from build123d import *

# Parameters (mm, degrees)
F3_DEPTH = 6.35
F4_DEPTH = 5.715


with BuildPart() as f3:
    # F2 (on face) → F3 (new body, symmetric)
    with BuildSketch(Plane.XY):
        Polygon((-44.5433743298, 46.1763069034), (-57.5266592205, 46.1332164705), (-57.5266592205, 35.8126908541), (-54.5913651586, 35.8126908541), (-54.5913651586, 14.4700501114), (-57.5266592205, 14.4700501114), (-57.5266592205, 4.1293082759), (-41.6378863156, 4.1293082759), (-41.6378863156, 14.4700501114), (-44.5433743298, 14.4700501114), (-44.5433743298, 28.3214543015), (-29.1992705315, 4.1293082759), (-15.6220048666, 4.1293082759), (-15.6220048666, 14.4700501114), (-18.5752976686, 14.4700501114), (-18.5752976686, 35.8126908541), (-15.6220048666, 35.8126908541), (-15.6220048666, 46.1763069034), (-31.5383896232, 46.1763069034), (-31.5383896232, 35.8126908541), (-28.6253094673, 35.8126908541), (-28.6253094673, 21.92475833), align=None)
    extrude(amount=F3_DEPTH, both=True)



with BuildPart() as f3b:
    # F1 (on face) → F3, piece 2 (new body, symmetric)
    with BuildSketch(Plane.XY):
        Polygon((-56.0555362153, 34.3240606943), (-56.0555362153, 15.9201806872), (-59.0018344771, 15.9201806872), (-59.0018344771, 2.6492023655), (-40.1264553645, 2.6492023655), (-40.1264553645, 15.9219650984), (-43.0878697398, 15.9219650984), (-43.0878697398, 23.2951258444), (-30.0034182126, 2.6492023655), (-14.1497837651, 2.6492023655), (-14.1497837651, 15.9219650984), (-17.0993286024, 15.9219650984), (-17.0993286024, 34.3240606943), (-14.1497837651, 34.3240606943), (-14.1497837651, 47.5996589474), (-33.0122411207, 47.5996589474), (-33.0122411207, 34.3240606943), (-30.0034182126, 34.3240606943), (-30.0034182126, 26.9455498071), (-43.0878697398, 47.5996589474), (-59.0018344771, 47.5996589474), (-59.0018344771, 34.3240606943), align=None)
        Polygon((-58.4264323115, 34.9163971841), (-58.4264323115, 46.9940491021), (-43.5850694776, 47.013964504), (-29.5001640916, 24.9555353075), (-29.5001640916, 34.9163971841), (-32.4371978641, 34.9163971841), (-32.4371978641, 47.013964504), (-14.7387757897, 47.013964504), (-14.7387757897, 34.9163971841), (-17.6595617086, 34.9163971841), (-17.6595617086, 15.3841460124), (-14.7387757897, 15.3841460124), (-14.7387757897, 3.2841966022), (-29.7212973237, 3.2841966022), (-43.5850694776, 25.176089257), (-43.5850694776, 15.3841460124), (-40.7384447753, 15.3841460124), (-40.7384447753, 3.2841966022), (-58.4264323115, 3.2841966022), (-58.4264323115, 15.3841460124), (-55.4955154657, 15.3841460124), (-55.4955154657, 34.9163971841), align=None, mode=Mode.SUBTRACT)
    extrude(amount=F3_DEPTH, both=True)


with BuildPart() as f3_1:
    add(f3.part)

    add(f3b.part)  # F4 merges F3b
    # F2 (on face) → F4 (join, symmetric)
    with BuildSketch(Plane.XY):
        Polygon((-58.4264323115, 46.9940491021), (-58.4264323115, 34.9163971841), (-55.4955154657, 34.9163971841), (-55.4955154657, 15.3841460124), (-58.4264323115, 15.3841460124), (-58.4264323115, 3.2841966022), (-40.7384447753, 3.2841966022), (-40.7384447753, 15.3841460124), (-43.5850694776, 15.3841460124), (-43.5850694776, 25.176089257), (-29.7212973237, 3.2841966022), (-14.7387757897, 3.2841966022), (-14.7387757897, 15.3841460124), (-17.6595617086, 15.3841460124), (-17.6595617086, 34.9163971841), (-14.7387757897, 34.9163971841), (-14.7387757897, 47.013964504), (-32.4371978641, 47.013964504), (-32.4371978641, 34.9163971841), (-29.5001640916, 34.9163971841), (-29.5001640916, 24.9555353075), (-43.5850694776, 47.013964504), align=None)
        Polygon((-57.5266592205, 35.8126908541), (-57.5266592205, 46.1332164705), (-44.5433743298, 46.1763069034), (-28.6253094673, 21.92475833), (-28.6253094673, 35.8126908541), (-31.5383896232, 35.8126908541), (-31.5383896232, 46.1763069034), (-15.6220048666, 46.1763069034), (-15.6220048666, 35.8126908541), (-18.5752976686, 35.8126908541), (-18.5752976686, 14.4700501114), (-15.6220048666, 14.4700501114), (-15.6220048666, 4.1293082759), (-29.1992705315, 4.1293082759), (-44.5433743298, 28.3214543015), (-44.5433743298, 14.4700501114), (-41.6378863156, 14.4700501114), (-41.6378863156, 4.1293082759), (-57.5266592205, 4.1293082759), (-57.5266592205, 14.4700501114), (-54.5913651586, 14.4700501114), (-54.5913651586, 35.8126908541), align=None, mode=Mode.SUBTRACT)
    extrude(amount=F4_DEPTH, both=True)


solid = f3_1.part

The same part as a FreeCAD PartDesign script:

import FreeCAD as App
import Part
import Sketcher

V = App.Vector
Q = App.Units.Quantity

doc = App.newDocument("Part")
body = doc.addObject("PartDesign::Body", "Body")

# Sketch on XY plane
sketch1 = body.newObject("Sketcher::SketchObject", "Sketch")
sketch1.AttachmentSupport = (doc.getObject("XY_Plane"), [""])
sketch1.MapMode = "FlatFace"
sketch1.addGeometry([
    Part.LineSegment(V(-44.5, 46.2, 0), V(-57.5, 46.1, 0)),  # 0
    Part.LineSegment(V(-57.5, 46.1, 0), V(-57.5, 35.8, 0)),  # 1
    Part.LineSegment(V(-57.5, 35.8, 0), V(-54.6, 35.8, 0)),  # 2
    Part.LineSegment(V(-54.6, 35.8, 0), V(-54.6, 14.5, 0)),  # 3
    Part.LineSegment(V(-54.6, 14.5, 0), V(-57.5, 14.5, 0)),  # 4
    Part.LineSegment(V(-57.5, 14.5, 0), V(-57.5, 4.1, 0)),  # 5
    Part.LineSegment(V(-57.5, 4.1, 0), V(-41.6, 4.1, 0)),  # 6
    Part.LineSegment(V(-41.6, 4.1, 0), V(-41.6, 14.5, 0)),  # 7
    Part.LineSegment(V(-41.6, 14.5, 0), V(-44.5, 14.5, 0)),  # 8
    Part.LineSegment(V(-44.5, 14.5, 0), V(-44.5, 28.3, 0)),  # 9
    Part.LineSegment(V(-44.5, 28.3, 0), V(-29.2, 4.1, 0)),  # 10
    Part.LineSegment(V(-29.2, 4.1, 0), V(-15.6, 4.1, 0)),  # 11
    Part.LineSegment(V(-15.6, 4.1, 0), V(-15.6, 14.5, 0)),  # 12
    Part.LineSegment(V(-15.6, 14.5, 0), V(-18.6, 14.5, 0)),  # 13
    Part.LineSegment(V(-18.6, 14.5, 0), V(-18.6, 35.8, 0)),  # 14
    Part.LineSegment(V(-18.6, 35.8, 0), V(-15.6, 35.8, 0)),  # 15
    Part.LineSegment(V(-15.6, 35.8, 0), V(-15.6, 46.2, 0)),  # 16
    Part.LineSegment(V(-15.6, 46.2, 0), V(-31.5, 46.2, 0)),  # 17
    Part.LineSegment(V(-31.5, 46.2, 0), V(-31.5, 35.8, 0)),  # 18
    Part.LineSegment(V(-31.5, 35.8, 0), V(-28.6, 35.8, 0)),  # 19
    Part.LineSegment(V(-28.6, 35.8, 0), V(-28.6, 21.9, 0)),  # 20
    Part.LineSegment(V(-28.6, 21.9, 0), V(-44.5, 46.2, 0)),  # 21
], False)
sketch1.addConstraint([
    Sketcher.Constraint("Coincident", 0, 2, 1, 1),
    Sketcher.Constraint("Coincident", 1, 2, 2, 1),
    Sketcher.Constraint("Coincident", 2, 2, 3, 1),
    Sketcher.Constraint("Coincident", 3, 2, 4, 1),
    Sketcher.Constraint("Coincident", 4, 2, 5, 1),
    Sketcher.Constraint("Coincident", 5, 2, 6, 1),
    Sketcher.Constraint("Coincident", 6, 2, 7, 1),
    Sketcher.Constraint("Coincident", 7, 2, 8, 1),
    Sketcher.Constraint("Coincident", 8, 2, 9, 1),
    Sketcher.Constraint("Coincident", 9, 2, 10, 1),
    Sketcher.Constraint("Coincident", 10, 2, 11, 1),
    Sketcher.Constraint("Coincident", 11, 2, 12, 1),
    Sketcher.Constraint("Coincident", 12, 2, 13, 1),
    Sketcher.Constraint("Coincident", 13, 2, 14, 1),
    Sketcher.Constraint("Coincident", 14, 2, 15, 1),
    Sketcher.Constraint("Coincident", 15, 2, 16, 1),
    Sketcher.Constraint("Coincident", 16, 2, 17, 1),
    Sketcher.Constraint("Coincident", 17, 2, 18, 1),
    Sketcher.Constraint("Coincident", 18, 2, 19, 1),
    Sketcher.Constraint("Coincident", 19, 2, 20, 1),
    Sketcher.Constraint("Coincident", 20, 2, 21, 1),
    Sketcher.Constraint("Coincident", 21, 2, 0, 1),
    Sketcher.Constraint("Vertical", 1),
    Sketcher.Constraint("Horizontal", 2),
    Sketcher.Constraint("Vertical", 3),
    Sketcher.Constraint("Horizontal", 4),
    Sketcher.Constraint("Vertical", 5),
    Sketcher.Constraint("Horizontal", 6),
    Sketcher.Constraint("Vertical", 7),
    Sketcher.Constraint("Horizontal", 8),
    Sketcher.Constraint("Vertical", 9),
    Sketcher.Constraint("Horizontal", 11),
    Sketcher.Constraint("Vertical", 12),
    Sketcher.Constraint("Horizontal", 13),
    Sketcher.Constraint("Vertical", 14),
    Sketcher.Constraint("Horizontal", 15),
    Sketcher.Constraint("Vertical", 16),
    Sketcher.Constraint("Horizontal", 17),
    Sketcher.Constraint("Vertical", 18),
    Sketcher.Constraint("Horizontal", 19),
    Sketcher.Constraint("Vertical", 20),
    Sketcher.Constraint("Horizontal", 4, 2, 7, 2),
    Sketcher.Constraint("Horizontal", 6, 2, 10, 2),
    Sketcher.Constraint("Horizontal", 8, 2, 12, 2),
    Sketcher.Constraint("Horizontal", 2, 2, 14, 2),
    Sketcher.Constraint("Horizontal", 15, 2, 18, 2),
    Sketcher.Constraint("Horizontal", 17, 2, 21, 2),
    Sketcher.Constraint("Vertical", 1, 2, 4, 2),
    Sketcher.Constraint("Vertical", 12, 2, 15, 2),
    Sketcher.Constraint("Vertical", 9, 2, 21, 2),
    Sketcher.Constraint("DistanceX", 8, 2, 8, 1, Q("2.905488 mm")),
    Sketcher.Constraint("DistanceX", 19, 1, 19, 2, Q("2.91308 mm")),
    Sketcher.Constraint("DistanceY", 3, 2, 3, 1, Q("21.342641 mm")),
    Sketcher.Constraint("DistanceY", 5, 2, 5, 1, Q("10.340742 mm")),
    Sketcher.Constraint("DistanceX", 2, 1, 2, 2, Q("2.935294 mm")),
    Sketcher.Constraint("DistanceX", 6, 1, 6, 2, Q("15.888773 mm")),
    Sketcher.Constraint("DistanceX", 11, 1, 11, 2, Q("13.577266 mm")),
    Sketcher.Constraint("DistanceX", 13, 2, 13, 1, Q("2.953293 mm")),
    Sketcher.Constraint("DistanceX", 17, 2, 17, 1, Q("15.916385 mm")),
    Sketcher.Constraint("DistanceY", 1, 2, 1, 1, Q("10.320526 mm")),
    Sketcher.Constraint("DistanceY", 9, 1, 9, 2, Q("13.851404 mm")),
    Sketcher.Constraint("DistanceY", 16, 1, 16, 2, Q("10.363616 mm")),
    Sketcher.Constraint("DistanceY", 20, 2, 20, 1, Q("13.887933 mm")),
    Sketcher.Constraint("DistanceX", 0, 2, -1, 1, Q("57.526659 mm")),
    Sketcher.Constraint("DistanceY", -1, 1, 1, 2, Q("35.812691 mm")),
    Sketcher.Constraint("DistanceX", 10, 2, -1, 1, Q("29.199271 mm")),
])
pad1 = body.newObject("PartDesign::Pad", "Pad")
pad1.Profile = sketch1
pad1.Length = Q("0.5 in")
pad1.Midplane = True
body2 = doc.addObject("PartDesign::Body", "Body001")

# Sketch on XY plane
sketch2 = body2.newObject("Sketcher::SketchObject", "Sketch001")
sketch2.AttachmentSupport = (doc.getObject("XY_Plane001"), [""])
sketch2.MapMode = "FlatFace"
sketch2.addGeometry([
    Part.LineSegment(V(-56.1, 34.3, 0), V(-56.1, 15.9, 0)),  # 0
    Part.LineSegment(V(-56.1, 15.9, 0), V(-59, 15.9, 0)),  # 1
    Part.LineSegment(V(-59, 15.9, 0), V(-59, 2.6, 0)),  # 2
    Part.LineSegment(V(-59, 2.6, 0), V(-40.1, 2.6, 0)),  # 3
    Part.LineSegment(V(-40.1, 2.6, 0), V(-40.1, 15.9, 0)),  # 4
    Part.LineSegment(V(-40.1, 15.9, 0), V(-43.1, 15.9, 0)),  # 5
    Part.LineSegment(V(-43.1, 15.9, 0), V(-43.1, 23.3, 0)),  # 6
    Part.LineSegment(V(-43.1, 23.3, 0), V(-30, 2.6, 0)),  # 7
    Part.LineSegment(V(-30, 2.6, 0), V(-14.1, 2.6, 0)),  # 8
    Part.LineSegment(V(-14.1, 2.6, 0), V(-14.1, 15.9, 0)),  # 9
    Part.LineSegment(V(-14.1, 15.9, 0), V(-17.1, 15.9, 0)),  # 10
    Part.LineSegment(V(-17.1, 15.9, 0), V(-17.1, 34.3, 0)),  # 11
    Part.LineSegment(V(-17.1, 34.3, 0), V(-14.1, 34.3, 0)),  # 12
    Part.LineSegment(V(-14.1, 34.3, 0), V(-14.1, 47.6, 0)),  # 13
    Part.LineSegment(V(-14.1, 47.6, 0), V(-33, 47.6, 0)),  # 14
    Part.LineSegment(V(-33, 47.6, 0), V(-33, 34.3, 0)),  # 15
    Part.LineSegment(V(-33, 34.3, 0), V(-30, 34.3, 0)),  # 16
    Part.LineSegment(V(-30, 34.3, 0), V(-30, 26.9, 0)),  # 17
    Part.LineSegment(V(-30, 26.9, 0), V(-43.1, 47.6, 0)),  # 18
    Part.LineSegment(V(-43.1, 47.6, 0), V(-59, 47.6, 0)),  # 19
    Part.LineSegment(V(-59, 47.6, 0), V(-59, 34.3, 0)),  # 20
    Part.LineSegment(V(-59, 34.3, 0), V(-56.1, 34.3, 0)),  # 21
    Part.LineSegment(V(-55.5, 34.9, 0), V(-58.4, 34.9, 0)),  # 22
    Part.LineSegment(V(-58.4, 34.9, 0), V(-58.4, 47, 0)),  # 23
    Part.LineSegment(V(-58.4, 47, 0), V(-43.6, 47, 0)),  # 24
    Part.LineSegment(V(-43.6, 47, 0), V(-29.5, 25, 0)),  # 25
    Part.LineSegment(V(-29.5, 25, 0), V(-29.5, 34.9, 0)),  # 26
    Part.LineSegment(V(-29.5, 34.9, 0), V(-32.4, 34.9, 0)),  # 27
    Part.LineSegment(V(-32.4, 34.9, 0), V(-32.4, 47, 0)),  # 28
    Part.LineSegment(V(-32.4, 47, 0), V(-14.7, 47, 0)),  # 29
    Part.LineSegment(V(-14.7, 47, 0), V(-14.7, 34.9, 0)),  # 30
    Part.LineSegment(V(-14.7, 34.9, 0), V(-17.7, 34.9, 0)),  # 31
    Part.LineSegment(V(-17.7, 34.9, 0), V(-17.7, 15.4, 0)),  # 32
    Part.LineSegment(V(-17.7, 15.4, 0), V(-14.7, 15.4, 0)),  # 33
    Part.LineSegment(V(-14.7, 15.4, 0), V(-14.7, 3.3, 0)),  # 34
    Part.LineSegment(V(-14.7, 3.3, 0), V(-29.7, 3.3, 0)),  # 35
    Part.LineSegment(V(-29.7, 3.3, 0), V(-43.6, 25.2, 0)),  # 36
    Part.LineSegment(V(-43.6, 25.2, 0), V(-43.6, 15.4, 0)),  # 37
    Part.LineSegment(V(-43.6, 15.4, 0), V(-40.7, 15.4, 0)),  # 38
    Part.LineSegment(V(-40.7, 15.4, 0), V(-40.7, 3.3, 0)),  # 39
    Part.LineSegment(V(-40.7, 3.3, 0), V(-58.4, 3.3, 0)),  # 40
    Part.LineSegment(V(-58.4, 3.3, 0), V(-58.4, 15.4, 0)),  # 41
    Part.LineSegment(V(-58.4, 15.4, 0), V(-55.5, 15.4, 0)),  # 42
    Part.LineSegment(V(-55.5, 15.4, 0), V(-55.5, 34.9, 0)),  # 43
], False)
sketch2.addConstraint([
    Sketcher.Constraint("Coincident", 0, 2, 1, 1),
    Sketcher.Constraint("Coincident", 1, 2, 2, 1),
    Sketcher.Constraint("Coincident", 2, 2, 3, 1),
    Sketcher.Constraint("Coincident", 3, 2, 4, 1),
    Sketcher.Constraint("Coincident", 4, 2, 5, 1),
    Sketcher.Constraint("Coincident", 5, 2, 6, 1),
    Sketcher.Constraint("Coincident", 6, 2, 7, 1),
    Sketcher.Constraint("Coincident", 7, 2, 8, 1),
    Sketcher.Constraint("Coincident", 8, 2, 9, 1),
    Sketcher.Constraint("Coincident", 9, 2, 10, 1),
    Sketcher.Constraint("Coincident", 10, 2, 11, 1),
    Sketcher.Constraint("Coincident", 11, 2, 12, 1),
    Sketcher.Constraint("Coincident", 12, 2, 13, 1),
    Sketcher.Constraint("Coincident", 13, 2, 14, 1),
    Sketcher.Constraint("Coincident", 14, 2, 15, 1),
    Sketcher.Constraint("Coincident", 15, 2, 16, 1),
    Sketcher.Constraint("Coincident", 16, 2, 17, 1),
    Sketcher.Constraint("Coincident", 17, 2, 18, 1),
    Sketcher.Constraint("Coincident", 18, 2, 19, 1),
    Sketcher.Constraint("Coincident", 19, 2, 20, 1),
    Sketcher.Constraint("Coincident", 20, 2, 21, 1),
    Sketcher.Constraint("Coincident", 21, 2, 0, 1),
    Sketcher.Constraint("Coincident", 22, 2, 23, 1),
    Sketcher.Constraint("Coincident", 23, 2, 24, 1),
    Sketcher.Constraint("Coincident", 24, 2, 25, 1),
    Sketcher.Constraint("Coincident", 25, 2, 26, 1),
    Sketcher.Constraint("Coincident", 26, 2, 27, 1),
    Sketcher.Constraint("Coincident", 27, 2, 28, 1),
    Sketcher.Constraint("Coincident", 28, 2, 29, 1),
    Sketcher.Constraint("Coincident", 29, 2, 30, 1),
    Sketcher.Constraint("Coincident", 30, 2, 31, 1),
    Sketcher.Constraint("Coincident", 31, 2, 32, 1),
    Sketcher.Constraint("Coincident", 32, 2, 33, 1),
    Sketcher.Constraint("Coincident", 33, 2, 34, 1),
    Sketcher.Constraint("Coincident", 34, 2, 35, 1),
    Sketcher.Constraint("Coincident", 35, 2, 36, 1),
    Sketcher.Constraint("Coincident", 36, 2, 37, 1),
    Sketcher.Constraint("Coincident", 37, 2, 38, 1),
    Sketcher.Constraint("Coincident", 38, 2, 39, 1),
    Sketcher.Constraint("Coincident", 39, 2, 40, 1),
    Sketcher.Constraint("Coincident", 40, 2, 41, 1),
    Sketcher.Constraint("Coincident", 41, 2, 42, 1),
    Sketcher.Constraint("Coincident", 42, 2, 43, 1),
    Sketcher.Constraint("Coincident", 43, 2, 22, 1),
    Sketcher.Constraint("Vertical", 0),
    Sketcher.Constraint("Horizontal", 1),
    Sketcher.Constraint("Vertical", 2),
    Sketcher.Constraint("Horizontal", 3),
    Sketcher.Constraint("Vertical", 4),
    Sketcher.Constraint("Horizontal", 5),
    Sketcher.Constraint("Vertical", 6),
    Sketcher.Constraint("Horizontal", 8),
    Sketcher.Constraint("Vertical", 9),
    Sketcher.Constraint("Horizontal", 10),
    Sketcher.Constraint("Vertical", 11),
    Sketcher.Constraint("Horizontal", 12),
    Sketcher.Constraint("Vertical", 13),
    Sketcher.Constraint("Horizontal", 14),
    Sketcher.Constraint("Vertical", 15),
    Sketcher.Constraint("Horizontal", 16),
    Sketcher.Constraint("Vertical", 17),
    Sketcher.Constraint("Horizontal", 19),
    Sketcher.Constraint("Vertical", 20),
    Sketcher.Constraint("Horizontal", 21),
    Sketcher.Constraint("Horizontal", 22),
    Sketcher.Constraint("Vertical", 23),
    Sketcher.Constraint("Vertical", 26),
    Sketcher.Constraint("Horizontal", 27),
    Sketcher.Constraint("Vertical", 28),
    Sketcher.Constraint("Horizontal", 29),
    Sketcher.Constraint("Vertical", 30),
    Sketcher.Constraint("Horizontal", 31),
    Sketcher.Constraint("Vertical", 32),
    Sketcher.Constraint("Horizontal", 33),
    Sketcher.Constraint("Vertical", 34),
    Sketcher.Constraint("Horizontal", 35),
    Sketcher.Constraint("Vertical", 37),
    Sketcher.Constraint("Horizontal", 38),
    Sketcher.Constraint("Vertical", 39),
    Sketcher.Constraint("Horizontal", 40),
    Sketcher.Constraint("Vertical", 41),
    Sketcher.Constraint("Horizontal", 42),
    Sketcher.Constraint("Vertical", 43),
    Sketcher.Constraint("Horizontal", 3, 2, 7, 2),
    Sketcher.Constraint("Horizontal", 5, 2, 9, 2),
    Sketcher.Constraint("Horizontal", 12, 2, 15, 2),
    Sketcher.Constraint("Horizontal", 14, 2, 18, 2),
    Sketcher.Constraint("Horizontal", 16, 2, 20, 2),
    Sketcher.Constraint("Horizontal", 22, 2, 26, 2),
    Sketcher.Constraint("Horizontal", 24, 2, 28, 2),
    Sketcher.Constraint("Horizontal", 27, 2, 30, 2),
    Sketcher.Constraint("Horizontal", 33, 2, 37, 2),
    Sketcher.Constraint("Horizontal", 35, 2, 39, 2),
    Sketcher.Constraint("Horizontal", 38, 2, 41, 2),
    Sketcher.Constraint("Vertical", 9, 2, 12, 2),
    Sketcher.Constraint("Vertical", 7, 2, 16, 2),
    Sketcher.Constraint("Vertical", 6, 2, 18, 2),
    Sketcher.Constraint("Vertical", 2, 2, 19, 2),
    Sketcher.Constraint("Vertical", 30, 2, 33, 2),
    Sketcher.Constraint("Vertical", 24, 2, 36, 2),
    Sketcher.Constraint("Vertical", 23, 2, 40, 2),
    Sketcher.Constraint("DistanceX", 1, 2, 1, 1, Q("2.946298 mm")),
    Sketcher.Constraint("DistanceY", 13, 1, 13, 2, Q("13.275598 mm")),
    Sketcher.Constraint("DistanceX", 3, 1, 3, 2, Q("18.875379 mm")),
    Sketcher.Constraint("DistanceX", 35, 2, 35, 1, Q("14.982522 mm")),
    Sketcher.Constraint("DistanceY", 0, 2, 0, 1, Q("18.40388 mm")),
    Sketcher.Constraint("DistanceY", 2, 2, 2, 1, Q("13.270978 mm")),
    Sketcher.Constraint("DistanceY", 6, 1, 6, 2, Q("7.373161 mm")),
    Sketcher.Constraint("DistanceY", 17, 2, 17, 1, Q("7.378511 mm")),
    Sketcher.Constraint("DistanceY", 23, 1, 23, 2, Q("12.077652 mm")),
    Sketcher.Constraint("DistanceY", 26, 1, 26, 2, Q("9.960862 mm")),
    Sketcher.Constraint("DistanceY", 32, 2, 32, 1, Q("19.532251 mm")),
    Sketcher.Constraint("DistanceY", 34, 2, 34, 1, Q("12.099949 mm")),
    Sketcher.Constraint("DistanceX", 24, 2, 18, 2, Q("0.4972 mm")),
    Sketcher.Constraint("Distance", 18, Q("24.449849 mm")),
    Sketcher.Constraint("Distance", 25, Q("26.171719 mm")),
    Sketcher.Constraint("Distance", 36, Q("25.912529 mm")),
    Sketcher.Constraint("DistanceX", 5, 2, 5, 1, Q("2.961414 mm")),
    Sketcher.Constraint("DistanceX", 8, 1, 8, 2, Q("15.853634 mm")),
    Sketcher.Constraint("DistanceX", 10, 2, 10, 1, Q("2.949545 mm")),
    Sketcher.Constraint("DistanceX", 14, 2, 14, 1, Q("18.862457 mm")),
    Sketcher.Constraint("DistanceX", 22, 2, 22, 1, Q("2.930917 mm")),
    Sketcher.Constraint("DistanceX", 27, 2, 27, 1, Q("2.937034 mm")),
    Sketcher.Constraint("DistanceX", 29, 1, 29, 2, Q("17.698422 mm")),
    Sketcher.Constraint("DistanceX", 31, 2, 31, 1, Q("2.920786 mm")),
    Sketcher.Constraint("DistanceX", 38, 1, 38, 2, Q("2.846625 mm")),
    Sketcher.Constraint("DistanceX", 40, 2, 40, 1, Q("17.687988 mm")),
    Sketcher.Constraint("DistanceY", 4, 1, 4, 2, Q("13.272763 mm")),
    Sketcher.Constraint("DistanceY", 28, 1, 28, 2, Q("12.097567 mm")),
    Sketcher.Constraint("DistanceY", -1, 1, 0, 2, Q("15.920181 mm")),
    Sketcher.Constraint("DistanceX", 5, 2, -1, 1, Q("43.08787 mm")),
    Sketcher.Constraint("DistanceY", -1, 1, 23, 2, Q("46.994049 mm")),
])
pad2 = body2.newObject("PartDesign::Pad", "Pad001")
pad2.Profile = sketch2
pad2.Length = Q("0.5 in")
pad2.Midplane = True
body.AllowCompound = True
doc.recompute()

boolean = body.newObject("PartDesign::Boolean", "Boolean")
boolean.Type = "Fuse"
boolean.addObjects([body2])

# Sketch on XY plane
sketch3 = body.newObject("Sketcher::SketchObject", "Sketch002")
sketch3.AttachmentSupport = (doc.getObject("XY_Plane"), [""])
sketch3.MapMode = "FlatFace"
sketch3.addGeometry([
    Part.LineSegment(V(-58.4, 47, 0), V(-58.4, 34.9, 0)),  # 0
    Part.LineSegment(V(-58.4, 34.9, 0), V(-55.5, 34.9, 0)),  # 1
    Part.LineSegment(V(-55.5, 34.9, 0), V(-55.5, 15.4, 0)),  # 2
    Part.LineSegment(V(-55.5, 15.4, 0), V(-58.4, 15.4, 0)),  # 3
    Part.LineSegment(V(-58.4, 15.4, 0), V(-58.4, 3.3, 0)),  # 4
    Part.LineSegment(V(-58.4, 3.3, 0), V(-40.7, 3.3, 0)),  # 5
    Part.LineSegment(V(-40.7, 3.3, 0), V(-40.7, 15.4, 0)),  # 6
    Part.LineSegment(V(-40.7, 15.4, 0), V(-43.6, 15.4, 0)),  # 7
    Part.LineSegment(V(-43.6, 15.4, 0), V(-43.6, 25.2, 0)),  # 8
    Part.LineSegment(V(-43.6, 25.2, 0), V(-29.7, 3.3, 0)),  # 9
    Part.LineSegment(V(-29.7, 3.3, 0), V(-14.7, 3.3, 0)),  # 10
    Part.LineSegment(V(-14.7, 3.3, 0), V(-14.7, 15.4, 0)),  # 11
    Part.LineSegment(V(-14.7, 15.4, 0), V(-17.7, 15.4, 0)),  # 12
    Part.LineSegment(V(-17.7, 15.4, 0), V(-17.7, 34.9, 0)),  # 13
    Part.LineSegment(V(-17.7, 34.9, 0), V(-14.7, 34.9, 0)),  # 14
    Part.LineSegment(V(-14.7, 34.9, 0), V(-14.7, 47, 0)),  # 15
    Part.LineSegment(V(-14.7, 47, 0), V(-32.4, 47, 0)),  # 16
    Part.LineSegment(V(-32.4, 47, 0), V(-32.4, 34.9, 0)),  # 17
    Part.LineSegment(V(-32.4, 34.9, 0), V(-29.5, 34.9, 0)),  # 18
    Part.LineSegment(V(-29.5, 34.9, 0), V(-29.5, 25, 0)),  # 19
    Part.LineSegment(V(-29.5, 25, 0), V(-43.6, 47, 0)),  # 20
    Part.LineSegment(V(-43.6, 47, 0), V(-58.4, 47, 0)),  # 21
    Part.LineSegment(V(-54.6, 35.8, 0), V(-57.5, 35.8, 0)),  # 22
    Part.LineSegment(V(-57.5, 35.8, 0), V(-57.5, 46.1, 0)),  # 23
    Part.LineSegment(V(-57.5, 46.1, 0), V(-44.5, 46.2, 0)),  # 24
    Part.LineSegment(V(-44.5, 46.2, 0), V(-28.6, 21.9, 0)),  # 25
    Part.LineSegment(V(-28.6, 21.9, 0), V(-28.6, 35.8, 0)),  # 26
    Part.LineSegment(V(-28.6, 35.8, 0), V(-31.5, 35.8, 0)),  # 27
    Part.LineSegment(V(-31.5, 35.8, 0), V(-31.5, 46.2, 0)),  # 28
    Part.LineSegment(V(-31.5, 46.2, 0), V(-15.6, 46.2, 0)),  # 29
    Part.LineSegment(V(-15.6, 46.2, 0), V(-15.6, 35.8, 0)),  # 30
    Part.LineSegment(V(-15.6, 35.8, 0), V(-18.6, 35.8, 0)),  # 31
    Part.LineSegment(V(-18.6, 35.8, 0), V(-18.6, 14.5, 0)),  # 32
    Part.LineSegment(V(-18.6, 14.5, 0), V(-15.6, 14.5, 0)),  # 33
    Part.LineSegment(V(-15.6, 14.5, 0), V(-15.6, 4.1, 0)),  # 34
    Part.LineSegment(V(-15.6, 4.1, 0), V(-29.2, 4.1, 0)),  # 35
    Part.LineSegment(V(-29.2, 4.1, 0), V(-44.5, 28.3, 0)),  # 36
    Part.LineSegment(V(-44.5, 28.3, 0), V(-44.5, 14.5, 0)),  # 37
    Part.LineSegment(V(-44.5, 14.5, 0), V(-41.6, 14.5, 0)),  # 38
    Part.LineSegment(V(-41.6, 14.5, 0), V(-41.6, 4.1, 0)),  # 39
    Part.LineSegment(V(-41.6, 4.1, 0), V(-57.5, 4.1, 0)),  # 40
    Part.LineSegment(V(-57.5, 4.1, 0), V(-57.5, 14.5, 0)),  # 41
    Part.LineSegment(V(-57.5, 14.5, 0), V(-54.6, 14.5, 0)),  # 42
    Part.LineSegment(V(-54.6, 14.5, 0), V(-54.6, 35.8, 0)),  # 43
], False)
sketch3.addConstraint([
    Sketcher.Constraint("Coincident", 0, 2, 1, 1),
    Sketcher.Constraint("Coincident", 1, 2, 2, 1),
    Sketcher.Constraint("Coincident", 2, 2, 3, 1),
    Sketcher.Constraint("Coincident", 3, 2, 4, 1),
    Sketcher.Constraint("Coincident", 4, 2, 5, 1),
    Sketcher.Constraint("Coincident", 5, 2, 6, 1),
    Sketcher.Constraint("Coincident", 6, 2, 7, 1),
    Sketcher.Constraint("Coincident", 7, 2, 8, 1),
    Sketcher.Constraint("Coincident", 8, 2, 9, 1),
    Sketcher.Constraint("Coincident", 9, 2, 10, 1),
    Sketcher.Constraint("Coincident", 10, 2, 11, 1),
    Sketcher.Constraint("Coincident", 11, 2, 12, 1),
    Sketcher.Constraint("Coincident", 12, 2, 13, 1),
    Sketcher.Constraint("Coincident", 13, 2, 14, 1),
    Sketcher.Constraint("Coincident", 14, 2, 15, 1),
    Sketcher.Constraint("Coincident", 15, 2, 16, 1),
    Sketcher.Constraint("Coincident", 16, 2, 17, 1),
    Sketcher.Constraint("Coincident", 17, 2, 18, 1),
    Sketcher.Constraint("Coincident", 18, 2, 19, 1),
    Sketcher.Constraint("Coincident", 19, 2, 20, 1),
    Sketcher.Constraint("Coincident", 20, 2, 21, 1),
    Sketcher.Constraint("Coincident", 21, 2, 0, 1),
    Sketcher.Constraint("Coincident", 22, 2, 23, 1),
    Sketcher.Constraint("Coincident", 23, 2, 24, 1),
    Sketcher.Constraint("Coincident", 24, 2, 25, 1),
    Sketcher.Constraint("Coincident", 25, 2, 26, 1),
    Sketcher.Constraint("Coincident", 26, 2, 27, 1),
    Sketcher.Constraint("Coincident", 27, 2, 28, 1),
    Sketcher.Constraint("Coincident", 28, 2, 29, 1),
    Sketcher.Constraint("Coincident", 29, 2, 30, 1),
    Sketcher.Constraint("Coincident", 30, 2, 31, 1),
    Sketcher.Constraint("Coincident", 31, 2, 32, 1),
    Sketcher.Constraint("Coincident", 32, 2, 33, 1),
    Sketcher.Constraint("Coincident", 33, 2, 34, 1),
    Sketcher.Constraint("Coincident", 34, 2, 35, 1),
    Sketcher.Constraint("Coincident", 35, 2, 36, 1),
    Sketcher.Constraint("Coincident", 36, 2, 37, 1),
    Sketcher.Constraint("Coincident", 37, 2, 38, 1),
    Sketcher.Constraint("Coincident", 38, 2, 39, 1),
    Sketcher.Constraint("Coincident", 39, 2, 40, 1),
    Sketcher.Constraint("Coincident", 40, 2, 41, 1),
    Sketcher.Constraint("Coincident", 41, 2, 42, 1),
    Sketcher.Constraint("Coincident", 42, 2, 43, 1),
    Sketcher.Constraint("Coincident", 43, 2, 22, 1),
    Sketcher.Constraint("Vertical", 0),
    Sketcher.Constraint("Horizontal", 1),
    Sketcher.Constraint("Vertical", 2),
    Sketcher.Constraint("Horizontal", 3),
    Sketcher.Constraint("Vertical", 4),
    Sketcher.Constraint("Horizontal", 5),
    Sketcher.Constraint("Vertical", 6),
    Sketcher.Constraint("Horizontal", 7),
    Sketcher.Constraint("Vertical", 8),
    Sketcher.Constraint("Horizontal", 10),
    Sketcher.Constraint("Vertical", 11),
    Sketcher.Constraint("Horizontal", 12),
    Sketcher.Constraint("Vertical", 13),
    Sketcher.Constraint("Horizontal", 14),
    Sketcher.Constraint("Vertical", 15),
    Sketcher.Constraint("Horizontal", 16),
    Sketcher.Constraint("Vertical", 17),
    Sketcher.Constraint("Horizontal", 18),
    Sketcher.Constraint("Vertical", 19),
    Sketcher.Constraint("Horizontal", 22),
    Sketcher.Constraint("Vertical", 23),
    Sketcher.Constraint("Vertical", 26),
    Sketcher.Constraint("Horizontal", 27),
    Sketcher.Constraint("Vertical", 28),
    Sketcher.Constraint("Horizontal", 29),
    Sketcher.Constraint("Vertical", 30),
    Sketcher.Constraint("Horizontal", 31),
    Sketcher.Constraint("Vertical", 32),
    Sketcher.Constraint("Horizontal", 33),
    Sketcher.Constraint("Vertical", 34),
    Sketcher.Constraint("Horizontal", 35),
    Sketcher.Constraint("Vertical", 37),
    Sketcher.Constraint("Horizontal", 38),
    Sketcher.Constraint("Vertical", 39),
    Sketcher.Constraint("Horizontal", 40),
    Sketcher.Constraint("Vertical", 41),
    Sketcher.Constraint("Horizontal", 42),
    Sketcher.Constraint("Vertical", 43),
    Sketcher.Constraint("Horizontal", 3, 2, 6, 2),
    Sketcher.Constraint("Horizontal", 5, 2, 9, 2),
    Sketcher.Constraint("Horizontal", 7, 2, 11, 2),
    Sketcher.Constraint("Horizontal", 1, 2, 13, 2),
    Sketcher.Constraint("Horizontal", 14, 2, 17, 2),
    Sketcher.Constraint("Horizontal", 16, 2, 20, 2),
    Sketcher.Constraint("Horizontal", 22, 2, 26, 2),
    Sketcher.Constraint("Horizontal", 24, 2, 28, 2),
    Sketcher.Constraint("Horizontal", 27, 2, 30, 2),
    Sketcher.Constraint("Horizontal", 33, 2, 37, 2),
    Sketcher.Constraint("Horizontal", 35, 2, 39, 2),
    Sketcher.Constraint("Horizontal", 38, 2, 41, 2),
    Sketcher.Constraint("Vertical", 0, 2, 3, 2),
    Sketcher.Constraint("Vertical", 11, 2, 14, 2),
    Sketcher.Constraint("Vertical", 8, 2, 20, 2),
    Sketcher.Constraint("Vertical", 30, 2, 33, 2),
    Sketcher.Constraint("Vertical", 24, 2, 36, 2),
    Sketcher.Constraint("Vertical", 23, 2, 40, 2),
    Sketcher.Constraint("DistanceX", 10, 1, 10, 2, Q("14.982522 mm")),
    Sketcher.Constraint("DistanceX", 27, 2, 27, 1, Q("2.91308 mm")),
    Sketcher.Constraint("DistanceX", 38, 1, 38, 2, Q("2.905488 mm")),
    Sketcher.Constraint("DistanceY", 0, 2, 0, 1, Q("12.077652 mm")),
    Sketcher.Constraint("DistanceY", 2, 2, 2, 1, Q("19.532251 mm")),
    Sketcher.Constraint("DistanceY", 4, 2, 4, 1, Q("12.099949 mm")),
    Sketcher.Constraint("DistanceY", 19, 2, 19, 1, Q("9.960862 mm")),
    Sketcher.Constraint("DistanceY", 32, 2, 32, 1, Q("21.342641 mm")),
    Sketcher.Constraint("DistanceY", 34, 2, 34, 1, Q("10.340742 mm")),
    Sketcher.Constraint("DistanceY", 8, 2, 22, 2, Q("10.636602 mm")),
    Sketcher.Constraint("Distance", 9, Q("25.912529 mm")),
    Sketcher.Constraint("Distance", 20, Q("26.171719 mm")),
    Sketcher.Constraint("DistanceX", 1, 1, 1, 2, Q("2.930917 mm")),
    Sketcher.Constraint("DistanceX", 5, 1, 5, 2, Q("17.687988 mm")),
    Sketcher.Constraint("DistanceX", 7, 2, 7, 1, Q("2.846625 mm")),
    Sketcher.Constraint("DistanceX", 12, 2, 12, 1, Q("2.920786 mm")),
    Sketcher.Constraint("DistanceX", 16, 2, 16, 1, Q("17.698422 mm")),
    Sketcher.Constraint("DistanceX", 18, 1, 18, 2, Q("2.937034 mm")),
    Sketcher.Constraint("DistanceX", 22, 2, 22, 1, Q("2.935294 mm")),
    Sketcher.Constraint("DistanceX", 29, 1, 29, 2, Q("15.916385 mm")),
    Sketcher.Constraint("DistanceX", 31, 2, 31, 1, Q("2.953293 mm")),
    Sketcher.Constraint("DistanceX", 35, 2, 35, 1, Q("13.577266 mm")),
    Sketcher.Constraint("DistanceX", 40, 2, 40, 1, Q("15.888773 mm")),
    Sketcher.Constraint("DistanceY", 8, 1, 8, 2, Q("9.791943 mm")),
    Sketcher.Constraint("DistanceY", 23, 1, 23, 2, Q("10.320526 mm")),
    Sketcher.Constraint("DistanceY", 26, 1, 26, 2, Q("13.887933 mm")),
    Sketcher.Constraint("DistanceY", 28, 1, 28, 2, Q("10.363616 mm")),
    Sketcher.Constraint("DistanceY", 37, 2, 37, 1, Q("13.851404 mm")),
    Sketcher.Constraint("DistanceX", 7, 2, -1, 1, Q("43.585069 mm")),
    Sketcher.Constraint("DistanceY", -1, 1, 8, 2, Q("25.176089 mm")),
    Sketcher.Constraint("DistanceX", 22, 2, -1, 1, Q("57.526659 mm")),
    Sketcher.Constraint("DistanceX", 25, 2, -1, 1, Q("28.625309 mm")),
])
pad3 = body.newObject("PartDesign::Pad", "Pad002")
pad3.Profile = sketch3
pad3.Length = Q("0.45 in")
pad3.Midplane = True

doc.recompute()
